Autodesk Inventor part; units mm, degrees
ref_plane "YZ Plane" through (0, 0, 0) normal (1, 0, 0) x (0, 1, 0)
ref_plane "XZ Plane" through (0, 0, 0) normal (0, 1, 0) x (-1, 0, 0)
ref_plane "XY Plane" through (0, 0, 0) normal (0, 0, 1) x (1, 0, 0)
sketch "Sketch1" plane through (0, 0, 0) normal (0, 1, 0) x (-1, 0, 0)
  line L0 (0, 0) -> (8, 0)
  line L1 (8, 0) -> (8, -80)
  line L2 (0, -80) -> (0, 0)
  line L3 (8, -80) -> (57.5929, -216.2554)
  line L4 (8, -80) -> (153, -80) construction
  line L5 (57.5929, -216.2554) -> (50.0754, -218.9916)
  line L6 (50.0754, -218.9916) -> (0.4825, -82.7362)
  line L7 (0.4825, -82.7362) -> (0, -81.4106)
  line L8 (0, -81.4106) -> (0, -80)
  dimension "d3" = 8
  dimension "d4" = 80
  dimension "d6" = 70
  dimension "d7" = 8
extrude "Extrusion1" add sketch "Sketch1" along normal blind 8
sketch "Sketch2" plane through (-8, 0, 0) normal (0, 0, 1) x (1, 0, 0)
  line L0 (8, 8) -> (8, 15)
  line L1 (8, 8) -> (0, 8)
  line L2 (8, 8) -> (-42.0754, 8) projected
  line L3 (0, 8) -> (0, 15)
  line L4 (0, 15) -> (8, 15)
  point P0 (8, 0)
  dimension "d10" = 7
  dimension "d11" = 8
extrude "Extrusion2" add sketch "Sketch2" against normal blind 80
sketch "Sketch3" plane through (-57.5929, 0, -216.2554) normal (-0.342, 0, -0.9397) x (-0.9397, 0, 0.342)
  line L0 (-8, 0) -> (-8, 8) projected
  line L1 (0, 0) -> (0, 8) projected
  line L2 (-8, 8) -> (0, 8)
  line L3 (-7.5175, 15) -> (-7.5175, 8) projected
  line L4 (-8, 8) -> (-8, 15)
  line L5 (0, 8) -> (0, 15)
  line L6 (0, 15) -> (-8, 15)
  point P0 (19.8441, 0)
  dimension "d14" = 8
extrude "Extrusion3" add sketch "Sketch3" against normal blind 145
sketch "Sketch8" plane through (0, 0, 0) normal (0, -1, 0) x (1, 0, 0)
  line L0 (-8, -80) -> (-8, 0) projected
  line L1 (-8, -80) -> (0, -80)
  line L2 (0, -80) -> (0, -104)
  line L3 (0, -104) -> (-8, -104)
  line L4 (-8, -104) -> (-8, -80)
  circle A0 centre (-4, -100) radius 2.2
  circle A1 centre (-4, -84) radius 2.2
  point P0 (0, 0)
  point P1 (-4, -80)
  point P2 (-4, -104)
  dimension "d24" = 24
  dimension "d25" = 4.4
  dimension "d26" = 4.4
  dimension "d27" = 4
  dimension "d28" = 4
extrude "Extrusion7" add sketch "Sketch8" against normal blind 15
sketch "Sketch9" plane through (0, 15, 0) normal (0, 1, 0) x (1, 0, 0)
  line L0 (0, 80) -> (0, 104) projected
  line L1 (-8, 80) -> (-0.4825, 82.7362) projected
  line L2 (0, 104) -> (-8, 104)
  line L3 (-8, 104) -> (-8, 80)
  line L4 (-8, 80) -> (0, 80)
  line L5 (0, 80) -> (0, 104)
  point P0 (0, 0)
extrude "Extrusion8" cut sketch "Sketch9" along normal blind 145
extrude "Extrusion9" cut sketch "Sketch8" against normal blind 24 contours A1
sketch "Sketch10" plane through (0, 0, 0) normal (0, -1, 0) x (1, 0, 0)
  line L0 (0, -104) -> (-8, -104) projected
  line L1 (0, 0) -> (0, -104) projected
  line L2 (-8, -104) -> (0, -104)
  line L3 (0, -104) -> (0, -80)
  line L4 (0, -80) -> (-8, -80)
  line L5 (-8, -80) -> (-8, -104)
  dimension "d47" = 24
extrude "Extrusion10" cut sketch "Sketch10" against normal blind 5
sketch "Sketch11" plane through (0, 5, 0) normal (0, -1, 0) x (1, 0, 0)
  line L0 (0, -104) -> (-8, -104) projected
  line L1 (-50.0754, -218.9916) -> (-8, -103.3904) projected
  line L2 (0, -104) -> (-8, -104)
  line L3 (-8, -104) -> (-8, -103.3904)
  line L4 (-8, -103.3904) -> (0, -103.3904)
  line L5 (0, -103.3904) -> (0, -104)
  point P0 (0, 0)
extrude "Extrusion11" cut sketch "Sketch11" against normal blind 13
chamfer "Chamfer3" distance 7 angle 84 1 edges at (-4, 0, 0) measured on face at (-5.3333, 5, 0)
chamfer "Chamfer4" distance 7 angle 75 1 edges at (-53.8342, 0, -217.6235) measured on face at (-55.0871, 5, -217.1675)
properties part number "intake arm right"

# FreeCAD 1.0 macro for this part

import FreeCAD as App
import Part
import Sketcher
Q = App.Units.Quantity


def edges_at(feature, points):
    """Names of the edges that pass closest to the given points."""
    edges = feature.Shape.Edges
    near = lambda p: min(range(len(edges)), key=lambda i: edges[i].distToShape(Part.Vertex(*p))[0])
    return sorted({f"Edge{near(p) + 1}" for p in points})


def add_polygon(sketch, points):
    """Adds a closed chain of lines whose ends are joined by coincident constraints."""
    first, n = sketch.GeometryCount, len(points)
    for a, b in zip(points, points[1:] + points[:1]):
        sketch.addGeometry(Part.LineSegment(App.Vector(*a, 0), App.Vector(*b, 0)), False)
    for i in range(n):
        sketch.addConstraint(Sketcher.Constraint("Coincident", first + i, 2, first + (i + 1) % n, 1))

doc = App.newDocument("Part")
body = doc.addObject("PartDesign::Body", "Body")

sketch1 = doc.addObject("Sketcher::SketchObject", "Sketch")
body.addObject(sketch1)
sketch1.AttachmentSupport = (doc.XZ_Plane, [""])
sketch1.MapMode = "FlatFace"
add_polygon(sketch1, [(-8, 0), (0, 0), (0, -81.4106), (-0.4825, -82.7362), (-50.0754, -218.9916), (-57.5929, -216.2554), (-8, -80)])
sketch1.addConstraint([
    Sketcher.Constraint("Horizontal", 0),
    Sketcher.Constraint("Vertical", 1),
    Sketcher.Constraint("Vertical", 6),
    Sketcher.Constraint("Coincident", 0, 2, -1, 1),
    Sketcher.Constraint("Parallel", 2, 3),
    Sketcher.Constraint("Perpendicular", 3, 4),
    Sketcher.Constraint("Perpendicular", 4, 5),
    Sketcher.Constraint("Equal", 3, 5),
    Sketcher.Constraint("DistanceX", 0, 1, 0, 2, Q("8 mm")),
    Sketcher.Constraint("DistanceY", 6, 1, 6, 2, Q("80 mm")),
    Sketcher.Constraint("Angle", 5, Q("70 deg")),
    Sketcher.Constraint("Distance", 4, Q("8 mm")),
    Sketcher.Constraint("Distance", 3, Q("145 mm")),
])
pad1 = doc.addObject("PartDesign::Pad", "Pad")
body.addObject(pad1)
pad1.Profile = sketch1
pad1.Length = 8
pad1.Reversed = True

sketch2 = doc.addObject("Sketcher::SketchObject", "Sketch001")
body.addObject(sketch2)
sketch2.AttachmentSupport = (doc.XY_Plane, [""])
sketch2.MapMode = "FlatFace"
add_polygon(sketch2, [(-8, 8), (0, 8), (0, 15), (-8, 15)])
sketch2.addConstraint([
    Sketcher.Constraint("Horizontal", 0),
    Sketcher.Constraint("Vertical", 1),
    Sketcher.Constraint("Horizontal", 2),
    Sketcher.Constraint("Vertical", 3),
    Sketcher.Constraint("PointOnObject", 0, 2, -2),
    Sketcher.Constraint("DistanceX", 0, 1, 0, 2, Q("8 mm")),
    Sketcher.Constraint("DistanceY", 1, 1, 1, 2, Q("7 mm")),
    Sketcher.Constraint("DistanceY", -1, 1, 0, 2, Q("8 mm")),
])
pad2 = doc.addObject("PartDesign::Pad", "Pad001")
body.addObject(pad2)
pad2.Profile = sketch2
pad2.Length = 80
pad2.Reversed = True

sketch3 = doc.addObject("Sketcher::SketchObject", "Sketch002")
body.addObject(sketch3)
sketch3.Placement = App.Placement(App.Vector(-57.5929, 0, -216.2554), App.Rotation(App.Vector(-0.939692621, 0, 0.342020143), App.Vector(0, 1, 0), App.Vector(-0.342020143, 0, -0.939692621), "ZXY"))
add_polygon(sketch3, [(-8, 15), (-8, 8), (0, 8), (0, 15)])
sketch3.addConstraint([
    Sketcher.Constraint("Vertical", 0),
    Sketcher.Constraint("Horizontal", 1),
    Sketcher.Constraint("Vertical", 2),
    Sketcher.Constraint("Horizontal", 3),
    Sketcher.Constraint("PointOnObject", 1, 2, -2),
    Sketcher.Constraint("DistanceX", 1, 1, 1, 2, Q("8 mm")),
    Sketcher.Constraint("DistanceY", -1, 1, 0, 2, Q("8 mm")),
    Sketcher.Constraint("DistanceY", 0, 2, 0, 1, Q("7 mm")),
])
pad3 = doc.addObject("PartDesign::Pad", "Pad002")
body.addObject(pad3)
pad3.Profile = sketch3
pad3.Length = 145
pad3.Reversed = True

sketch4 = doc.addObject("Sketcher::SketchObject", "Sketch003")
body.addObject(sketch4)
sketch4.AttachmentSupport = (doc.XZ_Plane, [""])
sketch4.MapMode = "FlatFace"
add_polygon(sketch4, [(0, -80), (-8, -80), (-8, -104), (0, -104)])
sketch4.addGeometry(Part.Circle(App.Vector(-4, -100, 0), App.Vector(0, 0, 1), 2.2), False)
sketch4.addGeometry(Part.Circle(App.Vector(-4, -84, 0), App.Vector(0, 0, 1), 2.2), False)
sketch4.addConstraint([
    Sketcher.Constraint("Horizontal", 0),
    Sketcher.Constraint("Vertical", 1),
    Sketcher.Constraint("Horizontal", 2),
    Sketcher.Constraint("Vertical", 3),
    Sketcher.Constraint("Equal", 4, 5),
    Sketcher.Constraint("PointOnObject", 2, 2, -2),
    Sketcher.Constraint("Vertical", 4, 3, 5, 3),
    Sketcher.Constraint("Diameter", 4, Q("4.4 mm")),
    Sketcher.Constraint("DistanceY", 1, 2, 1, 1, Q("24 mm")),
    Sketcher.Constraint("DistanceX", 4, 3, -1, 1, Q("4 mm")),
    Sketcher.Constraint("DistanceX", 0, 2, 5, 3, Q("4 mm")),
    Sketcher.Constraint("DistanceY", 5, 3, 0, 2, Q("4 mm")),
    Sketcher.Constraint("DistanceY", 1, 2, 4, 3, Q("4 mm")),
    Sketcher.Constraint("DistanceY", 4, 3, -1, 1, Q("100 mm")),
])
pad4 = doc.addObject("PartDesign::Pad", "Pad003")
body.addObject(pad4)
pad4.Profile = sketch4
pad4.Length = 15
pad4.Reversed = True

sketch5 = doc.addObject("Sketcher::SketchObject", "Sketch004")
body.addObject(sketch5)
sketch5.AttachmentSupport = (doc.XZ_Plane, [""])
sketch5.MapMode = "FlatFace"
sketch5.AttachmentOffset = App.Placement(App.Vector(0, 0, -15), App.Rotation())
add_polygon(sketch5, [(-8, -80), (0, -80), (0, -104), (-8, -104)])
sketch5.addConstraint([
    Sketcher.Constraint("Horizontal", 0),
    Sketcher.Constraint("Vertical", 1),
    Sketcher.Constraint("Horizontal", 2),
    Sketcher.Constraint("Vertical", 3),
    Sketcher.Constraint("PointOnObject", 0, 2, -2),
    Sketcher.Constraint("DistanceX", 0, 1, 0, 2, Q("8 mm")),
    Sketcher.Constraint("DistanceY", 1, 2, 1, 1, Q("24 mm")),
    Sketcher.Constraint("DistanceY", 0, 2, -1, 1, Q("80 mm")),
])
pocket1 = doc.addObject("PartDesign::Pocket", "Pocket")
body.addObject(pocket1)
pocket1.Profile = sketch5
pocket1.Length = 145

sketch6 = doc.addObject("Sketcher::SketchObject", "Sketch005")
body.addObject(sketch6)
sketch6.AttachmentSupport = (doc.XZ_Plane, [""])
sketch6.MapMode = "FlatFace"
sketch6.addGeometry(Part.Circle(App.Vector(-4, -84, 0), App.Vector(0, 0, 1), 2.2), False)
sketch6.addConstraint([
    Sketcher.Constraint("Diameter", 0, Q("4.4 mm")),
    Sketcher.Constraint("DistanceX", 0, 3, -1, 1, Q("4 mm")),
    Sketcher.Constraint("DistanceY", 0, 3, -1, 1, Q("84 mm")),
])
pocket2 = doc.addObject("PartDesign::Pocket", "Pocket001")
body.addObject(pocket2)
pocket2.Profile = sketch6
pocket2.Length = 24

sketch7 = doc.addObject("Sketcher::SketchObject", "Sketch006")
body.addObject(sketch7)
sketch7.AttachmentSupport = (doc.XZ_Plane, [""])
sketch7.MapMode = "FlatFace"
add_polygon(sketch7, [(-8, -104), (0, -104), (0, -80), (-8, -80)])
sketch7.addConstraint([
    Sketcher.Constraint("Horizontal", 0),
    Sketcher.Constraint("Vertical", 1),
    Sketcher.Constraint("Horizontal", 2),
    Sketcher.Constraint("Vertical", 3),
    Sketcher.Constraint("PointOnObject", 0, 2, -2),
    Sketcher.Constraint("DistanceY", 1, 1, 1, 2, Q("24 mm")),
    Sketcher.Constraint("DistanceX", 0, 1, 0, 2, Q("8 mm")),
    Sketcher.Constraint("DistanceY", 0, 2, -1, 1, Q("104 mm")),
])
pocket3 = doc.addObject("PartDesign::Pocket", "Pocket002")
body.addObject(pocket3)
pocket3.Profile = sketch7
pocket3.Length = 5

sketch8 = doc.addObject("Sketcher::SketchObject", "Sketch007")
body.addObject(sketch8)
sketch8.AttachmentSupport = (doc.XZ_Plane, [""])
sketch8.MapMode = "FlatFace"
sketch8.AttachmentOffset = App.Placement(App.Vector(0, 0, -5), App.Rotation())
add_polygon(sketch8, [(-8, -104), (0, -104), (0, -103.3904), (-8, -103.3904)])
sketch8.addConstraint([
    Sketcher.Constraint("Horizontal", 0),
    Sketcher.Constraint("Vertical", 1),
    Sketcher.Constraint("Horizontal", 2),
    Sketcher.Constraint("Vertical", 3),
    Sketcher.Constraint("PointOnObject", 0, 2, -2),
    Sketcher.Constraint("DistanceX", 0, 1, 0, 2, Q("8 mm")),
    Sketcher.Constraint("DistanceY", 0, 2, -1, 1, Q("104 mm")),
    Sketcher.Constraint("DistanceY", 1, 1, 1, 2, Q("0.6096 mm")),
])
pocket4 = doc.addObject("PartDesign::Pocket", "Pocket003")
body.addObject(pocket4)
pocket4.Profile = sketch8
pocket4.Length = 13
doc.recompute()

chamfer = doc.addObject("PartDesign::Chamfer", "Chamfer")
body.addObject(chamfer)
chamfer.Base = (pocket4, edges_at(pocket4, [(-4, 0, 0)]))
chamfer.ChamferType = "Distance and Angle"
chamfer.Size = 7
chamfer.Angle = 84
chamfer.FlipDirection = True
doc.recompute()

chamfer2 = doc.addObject("PartDesign::Chamfer", "Chamfer001")
body.addObject(chamfer2)
chamfer2.Base = (chamfer, edges_at(chamfer, [(-53.834, 0, -217.624)]))
chamfer2.ChamferType = "Distance and Angle"
chamfer2.Size = 7
chamfer2.Angle = 75

doc.recompute()
